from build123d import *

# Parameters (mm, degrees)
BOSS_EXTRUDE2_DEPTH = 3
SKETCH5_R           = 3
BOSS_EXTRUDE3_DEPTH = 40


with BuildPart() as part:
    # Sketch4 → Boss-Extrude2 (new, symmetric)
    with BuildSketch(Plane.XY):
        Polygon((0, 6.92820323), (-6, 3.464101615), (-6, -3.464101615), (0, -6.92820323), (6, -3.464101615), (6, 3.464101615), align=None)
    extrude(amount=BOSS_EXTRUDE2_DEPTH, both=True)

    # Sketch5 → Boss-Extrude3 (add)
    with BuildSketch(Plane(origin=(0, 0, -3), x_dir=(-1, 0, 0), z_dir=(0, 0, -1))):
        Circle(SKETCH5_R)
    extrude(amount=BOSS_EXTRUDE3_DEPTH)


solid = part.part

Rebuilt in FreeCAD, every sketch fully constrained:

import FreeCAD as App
import Part
import Sketcher
Q = App.Units.Quantity


def add_polygon(sketch, points):
    """Adds a closed chain of lines whose ends are joined by coincident constraints."""
    first, n = sketch.GeometryCount, len(points)
    for a, b in zip(points, points[1:] + points[:1]):
        sketch.addGeometry(Part.LineSegment(App.Vector(*a, 0), App.Vector(*b, 0)), False)
    for i in range(n):
        sketch.addConstraint(Sketcher.Constraint("Coincident", first + i, 2, first + (i + 1) % n, 1))

doc = App.newDocument("Part")
body = doc.addObject("PartDesign::Body", "Body")

# Sketch on XY plane
sketch1 = body.newObject("Sketcher::SketchObject", "Sketch")
sketch1.AttachmentSupport = (doc.getObject("XY_Plane"), [""])
sketch1.MapMode = "FlatFace"
add_polygon(sketch1, [(0, 7), (-6, 3), (-6, -3), (0, -7), (6, -3), (6, 3)])  # lines 0-5
sketch1.addConstraint([
    Sketcher.Constraint("Vertical", 1),
    Sketcher.Constraint("Vertical", 4),
    Sketcher.Constraint("Symmetric", 0, 2, 3, 2, -1, 1),
    Sketcher.Constraint("Symmetric", 2, 2, 5, 2, -1, 1),
    Sketcher.Constraint("PointOnObject", 2, 2, -2),
    Sketcher.Constraint("Parallel", 2, 5),
    Sketcher.Constraint("Horizontal", 1, 2, 3, 2),
    Sketcher.Constraint("Angle", 0, Q("-150 deg")),
    Sketcher.Constraint("DistanceX", 0, 2, -1, 1, 6.0),
    Sketcher.Constraint("DistanceY", -1, 1, 0, 2, 3.464102),
])
pad1 = body.newObject("PartDesign::Pad", "Pad")
pad1.Profile = sketch1
pad1.Length = 6
pad1.Midplane = True

# Sketch on XY plane
sketch2 = body.newObject("Sketcher::SketchObject", "Sketch001")
sketch2.AttachmentSupport = (doc.getObject("XY_Plane"), [""])
sketch2.MapMode = "FlatFace"
sketch2.AttachmentOffset = App.Placement(App.Vector(0, 0, -3), App.Rotation())
sketch2.addGeometry(Part.Circle(App.Vector(0, 0, 0), App.Vector(0, 0, 1), 3), False)
sketch2.addConstraint([
    Sketcher.Constraint("Coincident", 0, 3, -1, 1),
    Sketcher.Constraint("Diameter", 0, 6.0),
])
pad2 = body.newObject("PartDesign::Pad", "Pad001")
pad2.Profile = sketch2
pad2.Length = 40
pad2.Reversed = True

doc.recompute()
